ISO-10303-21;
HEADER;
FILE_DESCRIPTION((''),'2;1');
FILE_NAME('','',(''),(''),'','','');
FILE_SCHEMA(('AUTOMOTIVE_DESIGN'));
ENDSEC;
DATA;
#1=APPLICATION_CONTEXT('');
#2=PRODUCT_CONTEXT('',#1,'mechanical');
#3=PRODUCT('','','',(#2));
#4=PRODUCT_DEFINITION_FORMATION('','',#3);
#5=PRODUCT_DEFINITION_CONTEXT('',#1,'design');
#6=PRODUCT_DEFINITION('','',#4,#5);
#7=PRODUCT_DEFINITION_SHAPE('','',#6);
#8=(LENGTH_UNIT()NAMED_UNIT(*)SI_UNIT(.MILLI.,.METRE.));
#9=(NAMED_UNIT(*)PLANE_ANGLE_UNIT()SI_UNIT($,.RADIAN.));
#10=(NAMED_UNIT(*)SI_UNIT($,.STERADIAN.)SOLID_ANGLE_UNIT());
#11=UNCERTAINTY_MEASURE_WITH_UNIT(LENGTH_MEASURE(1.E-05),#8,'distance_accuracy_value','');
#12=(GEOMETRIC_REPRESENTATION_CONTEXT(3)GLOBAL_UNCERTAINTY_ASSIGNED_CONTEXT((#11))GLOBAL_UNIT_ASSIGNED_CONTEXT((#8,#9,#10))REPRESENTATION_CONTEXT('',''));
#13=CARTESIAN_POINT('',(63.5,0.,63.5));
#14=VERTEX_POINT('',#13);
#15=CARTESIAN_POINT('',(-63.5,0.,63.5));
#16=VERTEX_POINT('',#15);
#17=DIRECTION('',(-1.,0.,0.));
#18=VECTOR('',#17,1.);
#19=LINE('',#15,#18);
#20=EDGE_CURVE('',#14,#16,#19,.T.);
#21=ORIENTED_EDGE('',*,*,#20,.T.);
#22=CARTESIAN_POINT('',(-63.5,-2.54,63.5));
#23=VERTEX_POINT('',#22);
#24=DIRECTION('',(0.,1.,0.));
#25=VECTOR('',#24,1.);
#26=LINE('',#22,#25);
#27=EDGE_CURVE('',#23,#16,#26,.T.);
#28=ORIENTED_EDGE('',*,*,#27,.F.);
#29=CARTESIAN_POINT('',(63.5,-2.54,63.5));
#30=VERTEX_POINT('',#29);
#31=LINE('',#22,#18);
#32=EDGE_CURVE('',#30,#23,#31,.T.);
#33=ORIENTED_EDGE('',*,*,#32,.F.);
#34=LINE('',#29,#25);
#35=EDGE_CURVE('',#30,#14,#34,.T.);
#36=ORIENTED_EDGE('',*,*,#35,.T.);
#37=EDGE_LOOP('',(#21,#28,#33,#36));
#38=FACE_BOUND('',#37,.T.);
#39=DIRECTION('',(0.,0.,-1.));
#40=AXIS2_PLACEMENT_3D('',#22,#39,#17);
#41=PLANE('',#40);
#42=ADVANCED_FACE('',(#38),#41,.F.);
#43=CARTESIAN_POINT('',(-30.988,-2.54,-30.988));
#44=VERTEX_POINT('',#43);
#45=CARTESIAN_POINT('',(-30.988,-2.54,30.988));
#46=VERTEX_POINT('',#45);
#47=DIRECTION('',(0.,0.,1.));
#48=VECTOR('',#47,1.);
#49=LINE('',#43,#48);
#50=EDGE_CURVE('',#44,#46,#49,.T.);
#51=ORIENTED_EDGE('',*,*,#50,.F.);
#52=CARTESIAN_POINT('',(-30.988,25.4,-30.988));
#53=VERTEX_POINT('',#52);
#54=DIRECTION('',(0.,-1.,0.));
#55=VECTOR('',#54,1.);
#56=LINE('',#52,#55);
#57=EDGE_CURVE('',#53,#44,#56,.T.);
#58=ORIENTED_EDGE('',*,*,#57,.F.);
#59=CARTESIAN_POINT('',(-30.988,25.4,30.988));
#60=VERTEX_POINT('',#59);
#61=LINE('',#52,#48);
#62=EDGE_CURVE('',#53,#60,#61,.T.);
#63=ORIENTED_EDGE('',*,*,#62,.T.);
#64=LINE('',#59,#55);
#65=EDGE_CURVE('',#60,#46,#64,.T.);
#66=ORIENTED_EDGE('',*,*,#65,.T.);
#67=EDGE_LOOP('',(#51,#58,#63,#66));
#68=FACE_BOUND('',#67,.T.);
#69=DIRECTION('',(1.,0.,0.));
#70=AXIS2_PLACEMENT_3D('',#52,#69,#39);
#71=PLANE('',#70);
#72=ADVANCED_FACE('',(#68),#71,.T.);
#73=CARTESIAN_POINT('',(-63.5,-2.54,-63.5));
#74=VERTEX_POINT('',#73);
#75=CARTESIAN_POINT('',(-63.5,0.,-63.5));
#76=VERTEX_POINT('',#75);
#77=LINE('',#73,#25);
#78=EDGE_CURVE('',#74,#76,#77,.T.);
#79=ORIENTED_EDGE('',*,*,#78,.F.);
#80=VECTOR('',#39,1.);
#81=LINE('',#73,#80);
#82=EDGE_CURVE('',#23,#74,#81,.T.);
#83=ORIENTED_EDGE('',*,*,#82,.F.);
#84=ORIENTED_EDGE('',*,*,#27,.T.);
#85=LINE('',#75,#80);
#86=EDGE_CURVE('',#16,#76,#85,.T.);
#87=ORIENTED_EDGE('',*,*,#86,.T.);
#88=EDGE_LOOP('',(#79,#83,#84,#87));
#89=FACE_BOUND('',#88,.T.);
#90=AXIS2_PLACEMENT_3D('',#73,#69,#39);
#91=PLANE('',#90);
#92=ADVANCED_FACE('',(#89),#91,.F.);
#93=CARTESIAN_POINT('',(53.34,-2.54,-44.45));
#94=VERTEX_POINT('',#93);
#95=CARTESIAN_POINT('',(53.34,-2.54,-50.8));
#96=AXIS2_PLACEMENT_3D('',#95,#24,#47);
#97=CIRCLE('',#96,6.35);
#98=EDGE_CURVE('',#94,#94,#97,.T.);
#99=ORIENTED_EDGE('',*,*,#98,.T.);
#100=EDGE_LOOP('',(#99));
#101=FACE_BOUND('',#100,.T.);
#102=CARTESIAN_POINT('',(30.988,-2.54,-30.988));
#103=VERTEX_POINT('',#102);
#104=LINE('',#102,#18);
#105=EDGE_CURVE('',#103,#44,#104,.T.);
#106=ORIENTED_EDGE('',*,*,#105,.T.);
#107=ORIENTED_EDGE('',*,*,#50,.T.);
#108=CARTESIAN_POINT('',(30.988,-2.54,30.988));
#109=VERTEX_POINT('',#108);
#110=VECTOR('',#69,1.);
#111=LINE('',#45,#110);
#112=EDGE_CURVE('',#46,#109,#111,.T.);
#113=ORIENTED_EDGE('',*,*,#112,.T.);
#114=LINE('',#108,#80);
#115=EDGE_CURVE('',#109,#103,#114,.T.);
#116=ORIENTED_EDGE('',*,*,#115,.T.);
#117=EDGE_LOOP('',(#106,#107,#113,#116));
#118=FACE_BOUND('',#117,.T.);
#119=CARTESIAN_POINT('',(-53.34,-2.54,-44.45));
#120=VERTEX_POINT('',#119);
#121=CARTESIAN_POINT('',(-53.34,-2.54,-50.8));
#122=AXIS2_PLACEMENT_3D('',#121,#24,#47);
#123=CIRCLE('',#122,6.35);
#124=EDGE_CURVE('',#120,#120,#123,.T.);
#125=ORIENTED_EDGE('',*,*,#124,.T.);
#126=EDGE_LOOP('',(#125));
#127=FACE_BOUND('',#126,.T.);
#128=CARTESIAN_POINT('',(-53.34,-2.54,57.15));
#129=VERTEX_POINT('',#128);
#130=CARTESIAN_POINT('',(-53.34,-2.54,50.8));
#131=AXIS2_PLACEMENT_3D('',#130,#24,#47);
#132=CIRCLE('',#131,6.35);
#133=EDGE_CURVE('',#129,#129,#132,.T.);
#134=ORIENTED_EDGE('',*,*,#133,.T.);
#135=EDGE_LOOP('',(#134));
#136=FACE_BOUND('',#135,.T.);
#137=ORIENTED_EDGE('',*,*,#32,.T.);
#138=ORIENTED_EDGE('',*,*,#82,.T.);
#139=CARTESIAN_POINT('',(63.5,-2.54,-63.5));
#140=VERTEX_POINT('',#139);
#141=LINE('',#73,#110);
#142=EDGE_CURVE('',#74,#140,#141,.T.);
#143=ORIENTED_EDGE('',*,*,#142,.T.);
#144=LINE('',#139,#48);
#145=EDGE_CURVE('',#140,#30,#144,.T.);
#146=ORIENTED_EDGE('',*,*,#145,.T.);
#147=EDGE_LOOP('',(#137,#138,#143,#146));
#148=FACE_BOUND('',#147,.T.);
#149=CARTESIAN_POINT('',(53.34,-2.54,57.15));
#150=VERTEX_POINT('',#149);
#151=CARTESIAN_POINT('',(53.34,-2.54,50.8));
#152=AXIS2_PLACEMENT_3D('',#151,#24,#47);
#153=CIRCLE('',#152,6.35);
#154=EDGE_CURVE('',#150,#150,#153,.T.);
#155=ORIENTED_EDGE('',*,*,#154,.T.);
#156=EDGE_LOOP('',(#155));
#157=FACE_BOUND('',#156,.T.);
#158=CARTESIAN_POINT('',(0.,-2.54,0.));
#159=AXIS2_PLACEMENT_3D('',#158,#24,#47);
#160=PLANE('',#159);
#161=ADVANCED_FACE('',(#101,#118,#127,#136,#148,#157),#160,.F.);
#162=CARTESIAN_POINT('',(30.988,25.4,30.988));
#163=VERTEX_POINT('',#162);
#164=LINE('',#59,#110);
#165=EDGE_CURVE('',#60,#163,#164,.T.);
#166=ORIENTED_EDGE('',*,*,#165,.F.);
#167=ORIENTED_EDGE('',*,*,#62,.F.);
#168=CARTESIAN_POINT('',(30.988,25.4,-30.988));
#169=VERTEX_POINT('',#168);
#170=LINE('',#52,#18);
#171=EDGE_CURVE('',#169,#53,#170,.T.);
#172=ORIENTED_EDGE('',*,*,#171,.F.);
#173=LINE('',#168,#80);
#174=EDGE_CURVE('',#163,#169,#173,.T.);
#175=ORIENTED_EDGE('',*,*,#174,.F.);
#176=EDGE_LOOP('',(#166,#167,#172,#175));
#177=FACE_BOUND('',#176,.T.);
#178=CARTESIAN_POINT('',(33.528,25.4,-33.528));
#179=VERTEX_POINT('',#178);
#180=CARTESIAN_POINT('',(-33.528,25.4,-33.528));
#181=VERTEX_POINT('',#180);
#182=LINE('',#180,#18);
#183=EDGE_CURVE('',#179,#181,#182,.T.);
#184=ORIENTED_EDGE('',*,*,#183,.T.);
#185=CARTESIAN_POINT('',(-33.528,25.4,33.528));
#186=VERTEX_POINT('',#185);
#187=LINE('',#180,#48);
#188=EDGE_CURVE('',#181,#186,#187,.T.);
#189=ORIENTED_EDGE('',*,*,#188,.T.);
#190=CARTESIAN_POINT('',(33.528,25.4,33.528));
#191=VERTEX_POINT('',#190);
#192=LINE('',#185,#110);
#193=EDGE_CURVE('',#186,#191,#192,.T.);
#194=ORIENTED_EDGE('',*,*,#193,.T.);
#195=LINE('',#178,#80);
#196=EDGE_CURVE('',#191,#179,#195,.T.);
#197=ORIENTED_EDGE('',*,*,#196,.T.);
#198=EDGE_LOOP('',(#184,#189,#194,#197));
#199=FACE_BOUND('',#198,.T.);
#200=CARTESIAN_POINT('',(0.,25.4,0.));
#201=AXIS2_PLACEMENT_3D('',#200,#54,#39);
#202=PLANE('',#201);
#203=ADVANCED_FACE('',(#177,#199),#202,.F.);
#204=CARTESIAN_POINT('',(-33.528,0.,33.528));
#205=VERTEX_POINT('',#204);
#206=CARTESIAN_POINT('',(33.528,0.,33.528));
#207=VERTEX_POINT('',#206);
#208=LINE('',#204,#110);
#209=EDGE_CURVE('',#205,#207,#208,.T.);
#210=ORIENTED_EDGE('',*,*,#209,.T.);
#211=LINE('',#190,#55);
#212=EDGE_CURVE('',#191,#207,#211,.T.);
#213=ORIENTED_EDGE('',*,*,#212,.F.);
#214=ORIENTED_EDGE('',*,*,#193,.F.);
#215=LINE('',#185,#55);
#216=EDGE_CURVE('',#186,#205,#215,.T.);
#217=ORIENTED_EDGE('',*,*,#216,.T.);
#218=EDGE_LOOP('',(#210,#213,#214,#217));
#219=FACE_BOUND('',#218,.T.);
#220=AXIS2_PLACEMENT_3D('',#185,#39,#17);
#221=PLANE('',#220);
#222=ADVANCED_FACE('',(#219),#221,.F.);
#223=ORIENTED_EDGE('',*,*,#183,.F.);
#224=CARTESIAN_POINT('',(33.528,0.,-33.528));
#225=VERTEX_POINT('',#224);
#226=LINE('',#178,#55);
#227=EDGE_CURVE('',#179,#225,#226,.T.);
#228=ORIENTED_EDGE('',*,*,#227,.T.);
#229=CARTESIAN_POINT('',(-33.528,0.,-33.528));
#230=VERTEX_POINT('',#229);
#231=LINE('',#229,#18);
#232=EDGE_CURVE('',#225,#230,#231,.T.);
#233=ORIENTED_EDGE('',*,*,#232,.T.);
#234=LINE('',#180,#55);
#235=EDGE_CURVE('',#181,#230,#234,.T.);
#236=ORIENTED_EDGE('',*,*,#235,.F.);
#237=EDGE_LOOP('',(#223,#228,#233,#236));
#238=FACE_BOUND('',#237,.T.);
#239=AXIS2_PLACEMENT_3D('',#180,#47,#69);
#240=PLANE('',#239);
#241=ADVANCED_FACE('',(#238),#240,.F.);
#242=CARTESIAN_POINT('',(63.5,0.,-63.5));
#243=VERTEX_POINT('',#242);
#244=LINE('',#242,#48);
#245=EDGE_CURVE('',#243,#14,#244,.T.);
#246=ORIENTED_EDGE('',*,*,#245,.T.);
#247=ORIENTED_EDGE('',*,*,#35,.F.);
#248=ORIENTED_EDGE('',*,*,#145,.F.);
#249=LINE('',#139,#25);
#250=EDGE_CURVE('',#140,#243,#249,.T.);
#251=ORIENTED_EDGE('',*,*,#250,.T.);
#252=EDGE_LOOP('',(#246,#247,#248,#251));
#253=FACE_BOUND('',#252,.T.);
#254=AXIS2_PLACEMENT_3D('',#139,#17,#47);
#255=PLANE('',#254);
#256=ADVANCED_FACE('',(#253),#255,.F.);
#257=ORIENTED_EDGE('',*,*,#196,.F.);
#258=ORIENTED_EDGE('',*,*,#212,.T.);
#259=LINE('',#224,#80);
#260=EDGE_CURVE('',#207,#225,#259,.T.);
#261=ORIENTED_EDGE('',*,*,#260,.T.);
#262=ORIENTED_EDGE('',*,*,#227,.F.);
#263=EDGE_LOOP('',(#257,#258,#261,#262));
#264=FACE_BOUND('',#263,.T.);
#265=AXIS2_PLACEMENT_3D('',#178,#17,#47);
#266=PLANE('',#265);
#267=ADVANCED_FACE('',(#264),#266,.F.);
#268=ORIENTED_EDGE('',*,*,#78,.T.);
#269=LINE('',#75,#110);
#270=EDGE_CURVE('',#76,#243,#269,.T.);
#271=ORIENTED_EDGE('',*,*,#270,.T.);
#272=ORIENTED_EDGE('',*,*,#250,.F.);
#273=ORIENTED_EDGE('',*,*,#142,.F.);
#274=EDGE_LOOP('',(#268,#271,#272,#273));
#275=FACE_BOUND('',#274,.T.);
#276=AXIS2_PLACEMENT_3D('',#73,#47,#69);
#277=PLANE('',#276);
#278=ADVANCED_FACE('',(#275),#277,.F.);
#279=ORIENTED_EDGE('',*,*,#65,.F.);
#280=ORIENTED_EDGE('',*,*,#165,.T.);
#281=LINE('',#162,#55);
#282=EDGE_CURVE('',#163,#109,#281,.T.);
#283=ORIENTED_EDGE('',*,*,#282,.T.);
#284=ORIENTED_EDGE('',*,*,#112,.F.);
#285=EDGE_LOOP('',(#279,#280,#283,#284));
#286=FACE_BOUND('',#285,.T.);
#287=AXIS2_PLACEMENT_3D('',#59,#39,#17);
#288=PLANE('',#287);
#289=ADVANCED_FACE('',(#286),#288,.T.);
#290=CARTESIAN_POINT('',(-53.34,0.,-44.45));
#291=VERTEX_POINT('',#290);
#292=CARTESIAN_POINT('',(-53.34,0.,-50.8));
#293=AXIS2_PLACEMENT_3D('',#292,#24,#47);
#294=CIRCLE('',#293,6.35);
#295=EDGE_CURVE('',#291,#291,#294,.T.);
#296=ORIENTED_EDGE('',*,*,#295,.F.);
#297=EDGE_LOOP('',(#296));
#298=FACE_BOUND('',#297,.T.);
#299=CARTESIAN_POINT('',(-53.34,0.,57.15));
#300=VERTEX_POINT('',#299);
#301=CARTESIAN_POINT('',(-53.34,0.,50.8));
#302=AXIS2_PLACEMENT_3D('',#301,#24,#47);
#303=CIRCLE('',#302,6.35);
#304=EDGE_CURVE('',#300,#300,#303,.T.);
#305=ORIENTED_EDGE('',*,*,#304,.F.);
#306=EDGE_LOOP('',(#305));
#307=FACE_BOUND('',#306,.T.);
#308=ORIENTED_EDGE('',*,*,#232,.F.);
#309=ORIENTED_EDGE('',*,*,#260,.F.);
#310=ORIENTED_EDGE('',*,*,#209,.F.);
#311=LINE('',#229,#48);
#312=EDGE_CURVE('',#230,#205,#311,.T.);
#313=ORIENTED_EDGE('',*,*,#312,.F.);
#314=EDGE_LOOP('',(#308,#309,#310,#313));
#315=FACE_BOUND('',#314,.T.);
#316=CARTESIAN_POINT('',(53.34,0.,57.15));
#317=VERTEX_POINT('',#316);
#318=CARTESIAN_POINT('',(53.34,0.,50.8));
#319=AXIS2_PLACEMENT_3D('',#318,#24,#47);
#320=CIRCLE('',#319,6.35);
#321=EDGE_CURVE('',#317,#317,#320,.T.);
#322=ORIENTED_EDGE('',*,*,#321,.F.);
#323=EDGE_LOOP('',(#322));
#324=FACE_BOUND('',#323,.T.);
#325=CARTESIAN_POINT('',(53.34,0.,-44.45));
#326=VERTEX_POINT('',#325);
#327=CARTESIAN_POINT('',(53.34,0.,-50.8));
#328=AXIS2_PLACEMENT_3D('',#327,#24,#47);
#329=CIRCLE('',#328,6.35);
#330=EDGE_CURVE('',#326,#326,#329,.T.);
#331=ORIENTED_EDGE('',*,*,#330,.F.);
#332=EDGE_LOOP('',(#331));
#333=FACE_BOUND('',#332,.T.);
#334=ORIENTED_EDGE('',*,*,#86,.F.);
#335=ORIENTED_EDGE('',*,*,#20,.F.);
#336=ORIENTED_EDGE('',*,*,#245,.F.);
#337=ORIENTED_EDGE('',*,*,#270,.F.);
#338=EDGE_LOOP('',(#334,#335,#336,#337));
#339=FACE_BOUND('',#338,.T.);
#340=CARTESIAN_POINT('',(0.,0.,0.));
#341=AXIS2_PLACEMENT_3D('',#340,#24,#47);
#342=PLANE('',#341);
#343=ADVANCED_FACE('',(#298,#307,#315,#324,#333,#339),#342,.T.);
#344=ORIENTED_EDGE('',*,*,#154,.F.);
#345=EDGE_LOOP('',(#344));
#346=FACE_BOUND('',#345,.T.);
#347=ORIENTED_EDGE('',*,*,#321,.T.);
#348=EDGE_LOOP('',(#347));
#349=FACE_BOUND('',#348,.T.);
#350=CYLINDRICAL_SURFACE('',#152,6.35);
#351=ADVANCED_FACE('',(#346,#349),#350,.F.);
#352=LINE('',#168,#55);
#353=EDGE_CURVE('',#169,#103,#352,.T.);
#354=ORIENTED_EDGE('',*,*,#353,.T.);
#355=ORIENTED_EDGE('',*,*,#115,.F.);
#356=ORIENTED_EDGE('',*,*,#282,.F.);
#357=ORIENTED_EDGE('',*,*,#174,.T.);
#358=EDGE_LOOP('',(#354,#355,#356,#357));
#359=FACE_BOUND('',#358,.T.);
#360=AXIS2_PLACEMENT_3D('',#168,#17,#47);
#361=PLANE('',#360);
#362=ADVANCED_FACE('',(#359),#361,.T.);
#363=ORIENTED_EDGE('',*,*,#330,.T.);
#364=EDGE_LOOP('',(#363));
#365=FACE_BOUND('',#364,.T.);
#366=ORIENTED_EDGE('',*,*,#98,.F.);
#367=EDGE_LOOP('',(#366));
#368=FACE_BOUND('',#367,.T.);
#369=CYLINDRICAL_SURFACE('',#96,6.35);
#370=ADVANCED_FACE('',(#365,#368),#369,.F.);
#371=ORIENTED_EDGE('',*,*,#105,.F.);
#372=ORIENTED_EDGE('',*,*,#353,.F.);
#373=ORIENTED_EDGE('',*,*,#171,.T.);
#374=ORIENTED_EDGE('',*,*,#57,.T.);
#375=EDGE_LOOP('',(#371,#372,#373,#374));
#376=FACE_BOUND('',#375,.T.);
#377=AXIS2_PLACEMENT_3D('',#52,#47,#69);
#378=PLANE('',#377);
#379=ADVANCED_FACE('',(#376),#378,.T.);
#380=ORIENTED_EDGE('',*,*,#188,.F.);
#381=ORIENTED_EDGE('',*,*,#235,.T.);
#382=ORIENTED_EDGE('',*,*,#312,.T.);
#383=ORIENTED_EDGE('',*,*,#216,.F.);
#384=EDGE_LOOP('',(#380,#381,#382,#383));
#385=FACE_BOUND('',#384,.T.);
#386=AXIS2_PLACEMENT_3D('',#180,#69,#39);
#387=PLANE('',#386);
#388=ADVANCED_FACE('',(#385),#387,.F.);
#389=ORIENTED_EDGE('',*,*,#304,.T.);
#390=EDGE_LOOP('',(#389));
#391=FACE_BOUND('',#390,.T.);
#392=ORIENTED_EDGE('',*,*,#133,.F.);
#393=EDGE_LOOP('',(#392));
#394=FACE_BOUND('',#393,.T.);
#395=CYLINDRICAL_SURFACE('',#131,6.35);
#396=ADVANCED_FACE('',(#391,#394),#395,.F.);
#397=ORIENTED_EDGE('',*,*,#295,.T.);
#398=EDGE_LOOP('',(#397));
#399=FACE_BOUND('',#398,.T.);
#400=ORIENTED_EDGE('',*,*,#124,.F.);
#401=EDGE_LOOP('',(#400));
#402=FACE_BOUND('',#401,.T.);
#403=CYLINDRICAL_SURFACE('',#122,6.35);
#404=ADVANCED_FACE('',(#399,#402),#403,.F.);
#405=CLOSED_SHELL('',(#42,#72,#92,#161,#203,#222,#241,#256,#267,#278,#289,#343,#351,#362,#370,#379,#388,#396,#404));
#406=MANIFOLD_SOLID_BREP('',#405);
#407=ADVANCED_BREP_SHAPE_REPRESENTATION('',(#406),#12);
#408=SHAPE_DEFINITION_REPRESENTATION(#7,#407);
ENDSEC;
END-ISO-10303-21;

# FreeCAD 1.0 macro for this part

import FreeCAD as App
import Part
import Sketcher

V = App.Vector
Q = App.Units.Quantity

doc = App.newDocument("Part")
params = doc.addObject("Spreadsheet::Sheet", "Params")
for row, (alias, value) in enumerate([
    ("sketch1_width", "2.64 in"),
    ("sketch1_width2", "2.44 in"),
    ("pad1_length", "1 in"),
    ("sketch2_width", "5 in"),
    ("pad2_length", "0.1 in"),
    ("sketch3_diameter", "0.5 in"),
    ("sketch4_width", "2.44 in"),
], start=1):
    params.set(f"A{row}", alias)
    params.set(f"B{row}", "=" + value)
    params.setAlias(f"B{row}", alias)

body = doc.addObject("PartDesign::Body", "Body")

# Sketch on XZ plane
sketch1 = body.newObject("Sketcher::SketchObject", "Sketch")
sketch1.AttachmentSupport = (doc.getObject("XZ_Plane"), [""])
sketch1.MapMode = "FlatFace"
sketch1.addGeometry(Part.LineSegment(V(-34, -34, 0), V(-34, 34, 0)), False)
sketch1.addGeometry(Part.LineSegment(V(-34, 34, 0), V(34, 34, 0)), False)
sketch1.addGeometry(Part.LineSegment(V(34, 34, 0), V(34, -34, 0)), False)
sketch1.addGeometry(Part.LineSegment(V(34, -34, 0), V(-34, -34, 0)), False)
sketch1.addGeometry(Part.LineSegment(V(31, 31, 0), V(-31, 31, 0)), False)
sketch1.addGeometry(Part.LineSegment(V(-31, 31, 0), V(-31, -31, 0)), False)
sketch1.addGeometry(Part.LineSegment(V(-31, -31, 0), V(31, -31, 0)), False)
sketch1.addGeometry(Part.LineSegment(V(31, -31, 0), V(31, 31, 0)), False)
sketch1.addConstraint(Sketcher.Constraint("Coincident", 0, 2, 1, 1))
sketch1.addConstraint(Sketcher.Constraint("Coincident", 1, 2, 2, 1))
sketch1.addConstraint(Sketcher.Constraint("Coincident", 2, 2, 3, 1))
sketch1.addConstraint(Sketcher.Constraint("Coincident", 3, 2, 0, 1))
sketch1.addConstraint(Sketcher.Constraint("Coincident", 4, 2, 5, 1))
sketch1.addConstraint(Sketcher.Constraint("Coincident", 5, 2, 6, 1))
sketch1.addConstraint(Sketcher.Constraint("Coincident", 6, 2, 7, 1))
sketch1.addConstraint(Sketcher.Constraint("Coincident", 7, 2, 4, 1))
sketch1.addConstraint(Sketcher.Constraint("Vertical", 0))
sketch1.addConstraint(Sketcher.Constraint("Horizontal", 1))
sketch1.addConstraint(Sketcher.Constraint("Vertical", 2))
sketch1.addConstraint(Sketcher.Constraint("Horizontal", 3))
sketch1.addConstraint(Sketcher.Constraint("Horizontal", 4))
sketch1.addConstraint(Sketcher.Constraint("Vertical", 5))
sketch1.addConstraint(Sketcher.Constraint("Horizontal", 6))
sketch1.addConstraint(Sketcher.Constraint("Vertical", 7))
sketch1.addConstraint(Sketcher.Constraint("Symmetric", 0, 2, 2, 2, -1, 1))
sketch1.addConstraint(Sketcher.Constraint("Symmetric", 4, 2, 6, 2, -1, 1))
sketch1.addConstraint(Sketcher.Constraint("Equal", 3, 0))
sketch1.addConstraint(Sketcher.Constraint("Equal", 6, 5))
sketch1.addConstraint(Sketcher.Constraint("DistanceX", 1, 1, 1, 2, Q("2.64 in")))
sketch1.addConstraint(Sketcher.Constraint("DistanceX", 4, 2, 4, 1, Q("2.44 in")))
sketch1.setExpression("Constraints[20]", "Params.sketch1_width")
sketch1.setExpression("Constraints[21]", "Params.sketch1_width2")
pad1 = body.newObject("PartDesign::Pad", "Pad")
pad1.Profile = sketch1
pad1.setExpression("Length", "Params.pad1_length")
pad1.Reversed = True

# Sketch on XZ plane
sketch2 = body.newObject("Sketcher::SketchObject", "Sketch001")
sketch2.AttachmentSupport = (doc.getObject("XZ_Plane"), [""])
sketch2.MapMode = "FlatFace"
sketch2.addGeometry(Part.LineSegment(V(-64, 64, 0), V(-64, -64, 0)), False)
sketch2.addGeometry(Part.LineSegment(V(-64, -64, 0), V(64, -64, 0)), False)
sketch2.addGeometry(Part.LineSegment(V(64, -64, 0), V(64, 64, 0)), False)
sketch2.addGeometry(Part.LineSegment(V(64, 64, 0), V(-64, 64, 0)), False)
sketch2.addConstraint(Sketcher.Constraint("Coincident", 0, 2, 1, 1))
sketch2.addConstraint(Sketcher.Constraint("Coincident", 1, 2, 2, 1))
sketch2.addConstraint(Sketcher.Constraint("Coincident", 2, 2, 3, 1))
sketch2.addConstraint(Sketcher.Constraint("Coincident", 3, 2, 0, 1))
sketch2.addConstraint(Sketcher.Constraint("Vertical", 0))
sketch2.addConstraint(Sketcher.Constraint("Horizontal", 1))
sketch2.addConstraint(Sketcher.Constraint("Vertical", 2))
sketch2.addConstraint(Sketcher.Constraint("Horizontal", 3))
sketch2.addConstraint(Sketcher.Constraint("Symmetric", 0, 2, 2, 2, -1, 1))
sketch2.addConstraint(Sketcher.Constraint("Equal", 3, 0))
sketch2.addConstraint(Sketcher.Constraint("DistanceX", 1, 1, 1, 2, Q("5 in")))
sketch2.setExpression("Constraints[10]", "Params.sketch2_width")
pad2 = body.newObject("PartDesign::Pad", "Pad001")
pad2.Profile = sketch2
pad2.setExpression("Length", "Params.pad2_length")

# Sketch on XZ plane
sketch3 = body.newObject("Sketcher::SketchObject", "Sketch002")
sketch3.AttachmentSupport = (doc.getObject("XZ_Plane"), [""])
sketch3.MapMode = "FlatFace"
sketch3.addGeometry(Part.Circle(V(-53, -51, 0), V(0, 0, 1), 6), False)
sketch3.addGeometry(Part.Circle(V(53, -51, 0), V(0, 0, 1), 6), False)
sketch3.addGeometry(Part.Circle(V(53, 51, 0), V(0, 0, 1), 6), False)
sketch3.addGeometry(Part.Circle(V(-53, 51, 0), V(0, 0, 1), 6), False)
sketch3.addConstraint(Sketcher.Constraint("Equal", 0, 1))
sketch3.addConstraint(Sketcher.Constraint("Equal", 1, 2))
sketch3.addConstraint(Sketcher.Constraint("Equal", 2, 3))
sketch3.addConstraint(Sketcher.Constraint("Symmetric", 0, 3, 2, 3, -1, 1))
sketch3.addConstraint(Sketcher.Constraint("Symmetric", 1, 3, 3, 3, -1, 1))
sketch3.addConstraint(Sketcher.Constraint("Symmetric", 0, 3, 1, 3, -2))
sketch3.addConstraint(Sketcher.Constraint("Diameter", 0, Q("0.5 in")))
sketch3.addConstraint(Sketcher.Constraint("DistanceY", 0, 3, -1, 1, Q("2 in")))
sketch3.addConstraint(Sketcher.Constraint("DistanceX", 0, 3, -1, 1, Q("2.1 in")))
sketch3.setExpression("Constraints[6]", "Params.sketch3_diameter")
pocket1 = body.newObject("PartDesign::Pocket", "Pocket")
pocket1.Profile = sketch3
pocket1.Type = "ThroughAll"
pocket1.Reversed = True

# Sketch on XZ plane
sketch4 = body.newObject("Sketcher::SketchObject", "Sketch003")
sketch4.AttachmentSupport = (doc.getObject("XZ_Plane"), [""])
sketch4.MapMode = "FlatFace"
sketch4.addGeometry(Part.LineSegment(V(-31, -31, 0), V(-31, 31, 0)), False)
sketch4.addGeometry(Part.LineSegment(V(-31, 31, 0), V(31, 31, 0)), False)
sketch4.addGeometry(Part.LineSegment(V(31, 31, 0), V(31, -31, 0)), False)
sketch4.addGeometry(Part.LineSegment(V(31, -31, 0), V(-31, -31, 0)), False)
sketch4.addConstraint(Sketcher.Constraint("Coincident", 0, 2, 1, 1))
sketch4.addConstraint(Sketcher.Constraint("Coincident", 1, 2, 2, 1))
sketch4.addConstraint(Sketcher.Constraint("Coincident", 2, 2, 3, 1))
sketch4.addConstraint(Sketcher.Constraint("Coincident", 3, 2, 0, 1))
sketch4.addConstraint(Sketcher.Constraint("Vertical", 0))
sketch4.addConstraint(Sketcher.Constraint("Horizontal", 1))
sketch4.addConstraint(Sketcher.Constraint("Vertical", 2))
sketch4.addConstraint(Sketcher.Constraint("Horizontal", 3))
sketch4.addConstraint(Sketcher.Constraint("Symmetric", 0, 2, 2, 2, -1, 1))
sketch4.addConstraint(Sketcher.Constraint("Equal", 3, 0))
sketch4.addConstraint(Sketcher.Constraint("DistanceX", 1, 1, 1, 2, Q("2.44 in")))
sketch4.setExpression("Constraints[10]", "Params.sketch4_width")
pocket2 = body.newObject("PartDesign::Pocket", "Pocket001")
pocket2.Profile = sketch4
pocket2.Type = "ThroughAll"
pocket2.Reversed = True

doc.recompute()
